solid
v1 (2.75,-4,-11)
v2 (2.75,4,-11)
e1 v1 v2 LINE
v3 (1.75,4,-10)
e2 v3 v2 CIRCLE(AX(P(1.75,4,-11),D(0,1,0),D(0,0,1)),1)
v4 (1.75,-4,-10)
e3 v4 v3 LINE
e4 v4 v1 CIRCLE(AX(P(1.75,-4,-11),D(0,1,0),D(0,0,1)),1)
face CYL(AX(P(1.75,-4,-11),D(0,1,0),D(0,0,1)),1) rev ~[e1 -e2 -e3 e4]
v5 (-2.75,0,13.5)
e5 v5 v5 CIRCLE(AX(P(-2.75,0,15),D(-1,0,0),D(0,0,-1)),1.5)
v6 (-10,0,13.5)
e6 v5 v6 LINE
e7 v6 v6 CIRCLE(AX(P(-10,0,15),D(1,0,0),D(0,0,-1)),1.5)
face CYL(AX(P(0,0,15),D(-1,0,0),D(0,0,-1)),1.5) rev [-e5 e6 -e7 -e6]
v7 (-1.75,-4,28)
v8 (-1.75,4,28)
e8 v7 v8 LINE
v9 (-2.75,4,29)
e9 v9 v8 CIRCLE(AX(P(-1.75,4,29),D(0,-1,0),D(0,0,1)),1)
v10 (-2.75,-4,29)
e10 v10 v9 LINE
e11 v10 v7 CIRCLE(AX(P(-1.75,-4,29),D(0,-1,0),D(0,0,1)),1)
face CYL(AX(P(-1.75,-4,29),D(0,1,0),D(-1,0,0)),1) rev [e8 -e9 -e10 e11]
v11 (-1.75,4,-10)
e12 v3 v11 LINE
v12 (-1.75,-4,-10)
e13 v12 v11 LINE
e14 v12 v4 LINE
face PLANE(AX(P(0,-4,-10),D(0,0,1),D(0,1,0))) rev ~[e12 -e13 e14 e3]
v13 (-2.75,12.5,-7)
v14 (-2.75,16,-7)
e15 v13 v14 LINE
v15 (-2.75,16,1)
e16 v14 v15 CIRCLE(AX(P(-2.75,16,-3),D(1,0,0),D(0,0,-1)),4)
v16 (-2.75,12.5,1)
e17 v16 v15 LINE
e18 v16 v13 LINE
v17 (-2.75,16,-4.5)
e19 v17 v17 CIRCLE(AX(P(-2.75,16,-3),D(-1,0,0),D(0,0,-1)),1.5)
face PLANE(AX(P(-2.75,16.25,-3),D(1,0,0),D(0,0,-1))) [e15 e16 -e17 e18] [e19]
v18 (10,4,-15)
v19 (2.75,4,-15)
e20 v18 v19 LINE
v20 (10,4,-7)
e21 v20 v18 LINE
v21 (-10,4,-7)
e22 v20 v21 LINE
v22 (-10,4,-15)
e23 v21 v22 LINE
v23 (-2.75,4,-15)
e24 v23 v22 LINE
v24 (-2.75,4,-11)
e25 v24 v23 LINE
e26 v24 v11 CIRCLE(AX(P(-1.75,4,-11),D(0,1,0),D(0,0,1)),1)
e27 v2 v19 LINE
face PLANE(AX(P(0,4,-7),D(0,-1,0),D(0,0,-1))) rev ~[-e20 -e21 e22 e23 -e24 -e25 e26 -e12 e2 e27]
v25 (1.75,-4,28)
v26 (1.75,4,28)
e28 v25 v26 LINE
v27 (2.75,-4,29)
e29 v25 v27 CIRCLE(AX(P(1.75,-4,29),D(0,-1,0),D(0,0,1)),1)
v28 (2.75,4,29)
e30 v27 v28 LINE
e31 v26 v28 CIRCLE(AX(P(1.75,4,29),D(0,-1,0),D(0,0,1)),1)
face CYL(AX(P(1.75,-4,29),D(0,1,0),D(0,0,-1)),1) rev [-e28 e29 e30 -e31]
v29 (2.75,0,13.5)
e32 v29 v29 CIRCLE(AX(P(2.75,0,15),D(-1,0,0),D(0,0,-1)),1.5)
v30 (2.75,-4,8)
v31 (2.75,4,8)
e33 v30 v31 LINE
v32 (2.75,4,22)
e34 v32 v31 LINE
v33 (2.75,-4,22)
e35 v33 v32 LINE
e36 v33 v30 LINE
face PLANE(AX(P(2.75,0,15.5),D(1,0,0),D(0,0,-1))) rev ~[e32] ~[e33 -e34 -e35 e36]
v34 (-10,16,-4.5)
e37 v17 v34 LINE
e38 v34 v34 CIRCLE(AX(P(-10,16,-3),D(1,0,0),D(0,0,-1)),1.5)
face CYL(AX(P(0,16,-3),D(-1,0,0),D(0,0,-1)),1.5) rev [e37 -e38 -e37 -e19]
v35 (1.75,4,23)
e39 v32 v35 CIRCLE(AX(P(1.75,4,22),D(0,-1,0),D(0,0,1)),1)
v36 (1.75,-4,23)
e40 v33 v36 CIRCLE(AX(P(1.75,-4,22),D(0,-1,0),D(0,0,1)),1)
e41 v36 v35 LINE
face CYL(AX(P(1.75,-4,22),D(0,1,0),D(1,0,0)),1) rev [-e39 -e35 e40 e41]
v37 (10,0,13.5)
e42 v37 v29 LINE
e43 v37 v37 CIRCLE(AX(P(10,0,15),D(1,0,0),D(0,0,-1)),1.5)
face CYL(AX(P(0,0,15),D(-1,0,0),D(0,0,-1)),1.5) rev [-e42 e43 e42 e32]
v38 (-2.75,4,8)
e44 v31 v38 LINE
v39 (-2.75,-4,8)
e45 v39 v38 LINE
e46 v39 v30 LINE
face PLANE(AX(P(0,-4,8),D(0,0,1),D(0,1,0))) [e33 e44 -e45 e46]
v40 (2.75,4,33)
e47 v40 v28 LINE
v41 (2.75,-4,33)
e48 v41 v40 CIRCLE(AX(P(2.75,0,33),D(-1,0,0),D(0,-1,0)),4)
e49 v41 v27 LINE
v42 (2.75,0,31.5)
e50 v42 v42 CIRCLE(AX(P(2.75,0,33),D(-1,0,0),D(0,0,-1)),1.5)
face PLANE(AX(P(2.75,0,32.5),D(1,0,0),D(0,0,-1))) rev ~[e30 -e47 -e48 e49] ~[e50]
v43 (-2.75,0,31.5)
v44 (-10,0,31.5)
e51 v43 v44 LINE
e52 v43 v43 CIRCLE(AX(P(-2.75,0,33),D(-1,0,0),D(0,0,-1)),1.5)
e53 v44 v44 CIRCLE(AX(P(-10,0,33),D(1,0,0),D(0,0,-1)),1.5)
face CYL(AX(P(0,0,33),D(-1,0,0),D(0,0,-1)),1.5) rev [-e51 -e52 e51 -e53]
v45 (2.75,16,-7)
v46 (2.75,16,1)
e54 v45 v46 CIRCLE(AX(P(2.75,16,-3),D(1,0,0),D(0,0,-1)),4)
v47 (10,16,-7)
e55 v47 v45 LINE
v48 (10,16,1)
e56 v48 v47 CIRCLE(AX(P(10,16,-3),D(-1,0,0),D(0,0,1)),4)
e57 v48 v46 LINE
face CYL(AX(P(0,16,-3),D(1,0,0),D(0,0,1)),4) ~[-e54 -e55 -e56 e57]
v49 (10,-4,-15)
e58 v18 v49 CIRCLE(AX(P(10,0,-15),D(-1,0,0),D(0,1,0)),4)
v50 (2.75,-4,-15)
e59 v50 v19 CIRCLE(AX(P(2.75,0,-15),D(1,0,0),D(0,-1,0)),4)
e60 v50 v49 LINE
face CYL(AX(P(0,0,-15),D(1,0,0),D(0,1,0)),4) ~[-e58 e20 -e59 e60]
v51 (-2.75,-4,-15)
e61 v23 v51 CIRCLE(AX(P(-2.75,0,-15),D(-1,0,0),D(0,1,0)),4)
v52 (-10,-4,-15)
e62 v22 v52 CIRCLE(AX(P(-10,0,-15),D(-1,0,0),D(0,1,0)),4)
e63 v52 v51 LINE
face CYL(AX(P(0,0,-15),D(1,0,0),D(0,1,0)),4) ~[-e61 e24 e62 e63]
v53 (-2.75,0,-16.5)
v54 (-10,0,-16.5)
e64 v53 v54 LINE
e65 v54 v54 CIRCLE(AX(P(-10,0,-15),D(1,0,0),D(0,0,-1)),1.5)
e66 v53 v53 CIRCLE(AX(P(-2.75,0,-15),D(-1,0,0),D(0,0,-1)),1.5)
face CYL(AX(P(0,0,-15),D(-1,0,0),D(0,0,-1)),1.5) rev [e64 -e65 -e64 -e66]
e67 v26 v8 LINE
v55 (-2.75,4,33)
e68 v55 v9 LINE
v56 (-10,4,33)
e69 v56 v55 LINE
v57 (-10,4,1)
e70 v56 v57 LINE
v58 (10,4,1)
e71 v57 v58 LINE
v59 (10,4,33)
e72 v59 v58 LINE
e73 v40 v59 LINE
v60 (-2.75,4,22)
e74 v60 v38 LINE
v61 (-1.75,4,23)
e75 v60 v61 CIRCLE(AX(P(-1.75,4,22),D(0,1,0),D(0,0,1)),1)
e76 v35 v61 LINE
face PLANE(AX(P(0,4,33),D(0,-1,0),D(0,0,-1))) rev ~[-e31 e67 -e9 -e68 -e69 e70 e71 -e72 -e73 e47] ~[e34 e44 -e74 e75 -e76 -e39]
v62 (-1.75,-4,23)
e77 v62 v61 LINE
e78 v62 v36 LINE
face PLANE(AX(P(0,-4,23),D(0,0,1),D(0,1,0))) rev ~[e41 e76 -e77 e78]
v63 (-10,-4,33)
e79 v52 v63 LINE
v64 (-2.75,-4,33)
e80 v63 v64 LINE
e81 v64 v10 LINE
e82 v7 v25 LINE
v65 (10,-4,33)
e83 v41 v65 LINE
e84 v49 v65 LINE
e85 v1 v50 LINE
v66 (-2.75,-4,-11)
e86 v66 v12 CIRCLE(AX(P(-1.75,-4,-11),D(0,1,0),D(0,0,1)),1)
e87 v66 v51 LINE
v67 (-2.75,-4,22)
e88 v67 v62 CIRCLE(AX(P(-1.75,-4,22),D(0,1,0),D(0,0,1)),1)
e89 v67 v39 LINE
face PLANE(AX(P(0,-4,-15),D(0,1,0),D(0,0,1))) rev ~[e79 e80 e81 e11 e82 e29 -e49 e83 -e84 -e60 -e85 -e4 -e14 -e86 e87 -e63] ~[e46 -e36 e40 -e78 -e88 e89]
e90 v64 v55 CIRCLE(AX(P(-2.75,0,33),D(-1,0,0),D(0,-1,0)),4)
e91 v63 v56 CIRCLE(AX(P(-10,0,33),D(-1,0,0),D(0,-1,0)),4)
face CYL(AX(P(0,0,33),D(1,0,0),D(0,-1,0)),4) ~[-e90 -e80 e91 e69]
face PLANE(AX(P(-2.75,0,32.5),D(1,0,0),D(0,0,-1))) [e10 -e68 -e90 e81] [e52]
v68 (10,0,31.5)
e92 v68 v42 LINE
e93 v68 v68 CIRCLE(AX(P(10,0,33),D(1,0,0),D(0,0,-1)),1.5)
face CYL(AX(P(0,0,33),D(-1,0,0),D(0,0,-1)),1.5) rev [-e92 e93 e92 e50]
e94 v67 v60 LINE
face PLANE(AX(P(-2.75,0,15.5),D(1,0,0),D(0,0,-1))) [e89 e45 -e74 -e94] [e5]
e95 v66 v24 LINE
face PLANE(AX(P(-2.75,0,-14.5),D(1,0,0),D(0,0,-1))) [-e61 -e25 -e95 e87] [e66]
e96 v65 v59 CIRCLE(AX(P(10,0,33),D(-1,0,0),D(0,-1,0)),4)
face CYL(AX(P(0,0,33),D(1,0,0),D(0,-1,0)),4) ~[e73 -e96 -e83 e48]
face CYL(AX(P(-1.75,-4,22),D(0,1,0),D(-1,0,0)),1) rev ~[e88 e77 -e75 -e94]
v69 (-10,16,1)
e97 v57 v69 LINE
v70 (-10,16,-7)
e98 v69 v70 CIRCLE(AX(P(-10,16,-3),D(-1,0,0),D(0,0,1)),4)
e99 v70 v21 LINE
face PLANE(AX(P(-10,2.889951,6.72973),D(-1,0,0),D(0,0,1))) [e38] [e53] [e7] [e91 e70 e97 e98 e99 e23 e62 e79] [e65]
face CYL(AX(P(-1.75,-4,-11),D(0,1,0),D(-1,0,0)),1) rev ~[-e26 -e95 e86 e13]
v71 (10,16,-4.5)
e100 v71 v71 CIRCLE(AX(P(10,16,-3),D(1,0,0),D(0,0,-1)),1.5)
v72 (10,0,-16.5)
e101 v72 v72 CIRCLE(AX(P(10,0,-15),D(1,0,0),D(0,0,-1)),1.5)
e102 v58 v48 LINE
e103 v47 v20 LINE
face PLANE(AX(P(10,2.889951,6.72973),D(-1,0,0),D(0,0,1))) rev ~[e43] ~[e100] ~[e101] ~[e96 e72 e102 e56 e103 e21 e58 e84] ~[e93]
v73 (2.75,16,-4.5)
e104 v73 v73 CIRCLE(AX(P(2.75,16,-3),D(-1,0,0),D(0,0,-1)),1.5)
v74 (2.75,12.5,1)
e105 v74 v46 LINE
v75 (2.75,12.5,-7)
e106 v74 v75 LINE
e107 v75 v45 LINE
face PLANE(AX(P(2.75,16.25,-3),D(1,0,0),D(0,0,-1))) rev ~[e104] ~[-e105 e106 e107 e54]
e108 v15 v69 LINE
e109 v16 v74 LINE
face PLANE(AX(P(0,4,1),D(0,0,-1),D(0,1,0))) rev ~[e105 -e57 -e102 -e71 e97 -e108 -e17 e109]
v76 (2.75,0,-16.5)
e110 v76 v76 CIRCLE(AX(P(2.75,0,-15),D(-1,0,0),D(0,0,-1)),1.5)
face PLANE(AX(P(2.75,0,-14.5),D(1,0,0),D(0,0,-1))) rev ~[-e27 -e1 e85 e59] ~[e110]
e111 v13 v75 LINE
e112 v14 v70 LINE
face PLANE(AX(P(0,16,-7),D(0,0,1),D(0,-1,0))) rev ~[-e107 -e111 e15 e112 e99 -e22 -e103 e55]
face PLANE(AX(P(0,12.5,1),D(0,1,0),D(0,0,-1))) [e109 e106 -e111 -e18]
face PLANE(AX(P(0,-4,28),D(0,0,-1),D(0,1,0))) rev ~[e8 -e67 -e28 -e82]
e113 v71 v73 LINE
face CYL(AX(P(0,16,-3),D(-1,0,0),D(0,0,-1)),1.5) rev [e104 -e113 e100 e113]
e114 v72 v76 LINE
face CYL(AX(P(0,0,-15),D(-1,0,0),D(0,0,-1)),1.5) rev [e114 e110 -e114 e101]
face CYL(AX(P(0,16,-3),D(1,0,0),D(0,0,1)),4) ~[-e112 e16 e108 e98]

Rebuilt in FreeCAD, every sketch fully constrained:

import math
import FreeCAD as App
import Part
import Sketcher

V = App.Vector


def edges_at(feature, points):
    """Names of the edges that pass closest to the given points."""
    edges = feature.Shape.Edges
    near = lambda p: min(range(len(edges)), key=lambda i: edges[i].distToShape(Part.Vertex(*p))[0])
    return sorted({f"Edge{near(p) + 1}" for p in points})


def add_polygon(sketch, points):
    """Adds a closed chain of lines whose ends are joined by coincident constraints."""
    first, n = sketch.GeometryCount, len(points)
    for a, b in zip(points, points[1:] + points[:1]):
        sketch.addGeometry(Part.LineSegment(App.Vector(*a, 0), App.Vector(*b, 0)), False)
    for i in range(n):
        sketch.addConstraint(Sketcher.Constraint("Coincident", first + i, 2, first + (i + 1) % n, 1))

doc = App.newDocument("Part")
body = doc.addObject("PartDesign::Body", "Body")

# Sketch on YZ plane
sketch1 = doc.addObject("Sketcher::SketchObject", "Sketch")
body.addObject(sketch1)
sketch1.AttachmentSupport = (doc.YZ_Plane, [""])
sketch1.MapMode = "FlatFace"
sketch1.addGeometry([
    Part.LineSegment(V(16, 1, 0), V(4, 1, 0)),  # 0
    Part.LineSegment(V(4, 1, 0), V(4, 33, 0)),  # 1
    Part.ArcOfCircle(Part.Circle(V(0, 33, 0), V(0, 0, 1), 4), math.radians(0), math.radians(180)),  # 2
    Part.LineSegment(V(-4, 33, 0), V(-4, -15, 0)),  # 3
    Part.ArcOfCircle(Part.Circle(V(0, -15, 0), V(0, 0, 1), 4), math.radians(180), math.radians(360)),  # 4
    Part.LineSegment(V(4, -15, 0), V(4, -7, 0)),  # 5
    Part.LineSegment(V(4, -7, 0), V(16, -7, 0)),  # 6
    Part.ArcOfCircle(Part.Circle(V(16, -3, 0), V(0, 0, 1), 4), math.radians(-90), math.radians(90)),  # 7
    Part.Circle(V(0, -15, 0), V(0, 0, 1), 1.5),  # 8
    Part.Circle(V(0, 15, 0), V(0, 0, 1), 1.5),  # 9
    Part.Circle(V(0, 33, 0), V(0, 0, 1), 1.5),  # 10
    Part.Circle(V(16, -3, 0), V(0, 0, 1), 1.5),  # 11
], False)
sketch1.addConstraint([
    Sketcher.Constraint("Coincident", 0, 2, 1, 1),
    Sketcher.Constraint("Tangent", 1, 2, 2, 1),
    Sketcher.Constraint("Tangent", 2, 2, 3, 1),
    Sketcher.Constraint("Tangent", 3, 2, 4, 1),
    Sketcher.Constraint("Tangent", 4, 2, 5, 1),
    Sketcher.Constraint("Coincident", 5, 2, 6, 1),
    Sketcher.Constraint("Tangent", 6, 2, 7, 1),
    Sketcher.Constraint("Tangent", 7, 2, 0, 1),
    Sketcher.Constraint("Horizontal", 0),
    Sketcher.Constraint("Vertical", 1),
    Sketcher.Constraint("Vertical", 3),
    Sketcher.Constraint("Vertical", 5),
    Sketcher.Constraint("Horizontal", 6),
    Sketcher.Constraint("Coincident", 8, 3, 4, 3),
    Sketcher.Constraint("Coincident", 10, 3, 2, 3),
    Sketcher.Constraint("Coincident", 11, 3, 7, 3),
    Sketcher.Constraint("Equal", 2, 4),
    Sketcher.Constraint("Equal", 4, 7),
    Sketcher.Constraint("Equal", 8, 9),
    Sketcher.Constraint("Equal", 9, 10),
    Sketcher.Constraint("Equal", 10, 11),
    Sketcher.Constraint("Symmetric", 4, 3, 9, 3, -1, 1),
    Sketcher.Constraint("PointOnObject", 2, 3, -2),
    Sketcher.Constraint("Diameter", 8, 3.0),
    Sketcher.Constraint("Radius", 2, 4.0),
    Sketcher.Constraint("DistanceX", 0, 2, 0, 1, 12.0),
    Sketcher.Constraint("DistanceY", 1, 1, 1, 2, 32.0),
    Sketcher.Constraint("DistanceY", 3, 2, 3, 1, 48.0),
    Sketcher.Constraint("DistanceY", -1, 1, 2, 3, 33.0),
])
pad1 = doc.addObject("PartDesign::Pad", "Pad")
body.addObject(pad1)
pad1.Profile = sketch1
pad1.Length = 20
pad1.Midplane = True

# Sketch on YZ plane
sketch2 = doc.addObject("Sketcher::SketchObject", "Sketch001")
body.addObject(sketch2)
sketch2.AttachmentSupport = (doc.YZ_Plane, [""])
sketch2.MapMode = "FlatFace"
add_polygon(sketch2, [(20, 1), (12, 1), (12, -7), (20, -7)])  # lines 0-3
add_polygon(sketch2, [(4, 23), (-4, 23), (-4, 8), (4, 8)])  # lines 4-7
add_polygon(sketch2, [(4, -10), (-4, -10), (-4, -19), (4, -19)])  # lines 8-11
add_polygon(sketch2, [(4, 37), (-4, 37), (-4, 28), (4, 28)])  # lines 12-15
sketch2.addConstraint([
    Sketcher.Constraint("Horizontal", 0),
    Sketcher.Constraint("Vertical", 1),
    Sketcher.Constraint("Horizontal", 2),
    Sketcher.Constraint("Vertical", 3),
    Sketcher.Constraint("Horizontal", 4),
    Sketcher.Constraint("Vertical", 5),
    Sketcher.Constraint("Horizontal", 6),
    Sketcher.Constraint("Vertical", 7),
    Sketcher.Constraint("Horizontal", 8),
    Sketcher.Constraint("Vertical", 9),
    Sketcher.Constraint("Horizontal", 10),
    Sketcher.Constraint("Vertical", 11),
    Sketcher.Constraint("Horizontal", 12),
    Sketcher.Constraint("Vertical", 13),
    Sketcher.Constraint("Horizontal", 14),
    Sketcher.Constraint("Vertical", 15),
    Sketcher.Constraint("Vertical", 5, 2, 8, 2),
    Sketcher.Constraint("Vertical", 7, 2, 10, 2),
    Sketcher.Constraint("Vertical", 9, 2, 12, 2),
    Sketcher.Constraint("Vertical", 11, 2, 14, 2),
    Sketcher.Constraint("Equal", 14, 1),
    Sketcher.Constraint("Equal", 11, 13),
    Sketcher.Constraint("DistanceX", 4, 2, 4, 1, 8.0),
    Sketcher.Constraint("DistanceY", 5, 2, 5, 1, 15.0),
    Sketcher.Constraint("DistanceY", 9, 2, 9, 1, 9.0),
    Sketcher.Constraint("DistanceX", 0, 2, 0, 1, 7.5),
    Sketcher.Constraint("DistanceY", -1, 1, 0, 2, 1.0),
    Sketcher.Constraint("DistanceX", -1, 1, 2, 2, 20.0),
    Sketcher.Constraint("DistanceX", 4, 2, -1, 1, 4.0),
    Sketcher.Constraint("DistanceY", -1, 1, 4, 2, 23.0),
    Sketcher.Constraint("DistanceY", 8, 2, -1, 1, 10.0),
    Sketcher.Constraint("DistanceY", -1, 1, 12, 2, 37.0),
])
pocket1 = doc.addObject("PartDesign::Pocket", "Pocket")
body.addObject(pocket1)
pocket1.Profile = sketch2
pocket1.Length = 5.5
pocket1.Midplane = True
doc.recompute()

fillet = doc.addObject("PartDesign::Fillet", "Fillet")
body.addObject(fillet)
fillet.Base = (pocket1, edges_at(pocket1, [
    (2.75, 0, -10),
    (-2.75, 0, -10),
    (-2.75, 0, 23),
    (2.75, 0, 23),
    (2.75, 0, 28),
    (-2.75, 0, 28),
]))
fillet.Radius = 1

doc.recompute()
